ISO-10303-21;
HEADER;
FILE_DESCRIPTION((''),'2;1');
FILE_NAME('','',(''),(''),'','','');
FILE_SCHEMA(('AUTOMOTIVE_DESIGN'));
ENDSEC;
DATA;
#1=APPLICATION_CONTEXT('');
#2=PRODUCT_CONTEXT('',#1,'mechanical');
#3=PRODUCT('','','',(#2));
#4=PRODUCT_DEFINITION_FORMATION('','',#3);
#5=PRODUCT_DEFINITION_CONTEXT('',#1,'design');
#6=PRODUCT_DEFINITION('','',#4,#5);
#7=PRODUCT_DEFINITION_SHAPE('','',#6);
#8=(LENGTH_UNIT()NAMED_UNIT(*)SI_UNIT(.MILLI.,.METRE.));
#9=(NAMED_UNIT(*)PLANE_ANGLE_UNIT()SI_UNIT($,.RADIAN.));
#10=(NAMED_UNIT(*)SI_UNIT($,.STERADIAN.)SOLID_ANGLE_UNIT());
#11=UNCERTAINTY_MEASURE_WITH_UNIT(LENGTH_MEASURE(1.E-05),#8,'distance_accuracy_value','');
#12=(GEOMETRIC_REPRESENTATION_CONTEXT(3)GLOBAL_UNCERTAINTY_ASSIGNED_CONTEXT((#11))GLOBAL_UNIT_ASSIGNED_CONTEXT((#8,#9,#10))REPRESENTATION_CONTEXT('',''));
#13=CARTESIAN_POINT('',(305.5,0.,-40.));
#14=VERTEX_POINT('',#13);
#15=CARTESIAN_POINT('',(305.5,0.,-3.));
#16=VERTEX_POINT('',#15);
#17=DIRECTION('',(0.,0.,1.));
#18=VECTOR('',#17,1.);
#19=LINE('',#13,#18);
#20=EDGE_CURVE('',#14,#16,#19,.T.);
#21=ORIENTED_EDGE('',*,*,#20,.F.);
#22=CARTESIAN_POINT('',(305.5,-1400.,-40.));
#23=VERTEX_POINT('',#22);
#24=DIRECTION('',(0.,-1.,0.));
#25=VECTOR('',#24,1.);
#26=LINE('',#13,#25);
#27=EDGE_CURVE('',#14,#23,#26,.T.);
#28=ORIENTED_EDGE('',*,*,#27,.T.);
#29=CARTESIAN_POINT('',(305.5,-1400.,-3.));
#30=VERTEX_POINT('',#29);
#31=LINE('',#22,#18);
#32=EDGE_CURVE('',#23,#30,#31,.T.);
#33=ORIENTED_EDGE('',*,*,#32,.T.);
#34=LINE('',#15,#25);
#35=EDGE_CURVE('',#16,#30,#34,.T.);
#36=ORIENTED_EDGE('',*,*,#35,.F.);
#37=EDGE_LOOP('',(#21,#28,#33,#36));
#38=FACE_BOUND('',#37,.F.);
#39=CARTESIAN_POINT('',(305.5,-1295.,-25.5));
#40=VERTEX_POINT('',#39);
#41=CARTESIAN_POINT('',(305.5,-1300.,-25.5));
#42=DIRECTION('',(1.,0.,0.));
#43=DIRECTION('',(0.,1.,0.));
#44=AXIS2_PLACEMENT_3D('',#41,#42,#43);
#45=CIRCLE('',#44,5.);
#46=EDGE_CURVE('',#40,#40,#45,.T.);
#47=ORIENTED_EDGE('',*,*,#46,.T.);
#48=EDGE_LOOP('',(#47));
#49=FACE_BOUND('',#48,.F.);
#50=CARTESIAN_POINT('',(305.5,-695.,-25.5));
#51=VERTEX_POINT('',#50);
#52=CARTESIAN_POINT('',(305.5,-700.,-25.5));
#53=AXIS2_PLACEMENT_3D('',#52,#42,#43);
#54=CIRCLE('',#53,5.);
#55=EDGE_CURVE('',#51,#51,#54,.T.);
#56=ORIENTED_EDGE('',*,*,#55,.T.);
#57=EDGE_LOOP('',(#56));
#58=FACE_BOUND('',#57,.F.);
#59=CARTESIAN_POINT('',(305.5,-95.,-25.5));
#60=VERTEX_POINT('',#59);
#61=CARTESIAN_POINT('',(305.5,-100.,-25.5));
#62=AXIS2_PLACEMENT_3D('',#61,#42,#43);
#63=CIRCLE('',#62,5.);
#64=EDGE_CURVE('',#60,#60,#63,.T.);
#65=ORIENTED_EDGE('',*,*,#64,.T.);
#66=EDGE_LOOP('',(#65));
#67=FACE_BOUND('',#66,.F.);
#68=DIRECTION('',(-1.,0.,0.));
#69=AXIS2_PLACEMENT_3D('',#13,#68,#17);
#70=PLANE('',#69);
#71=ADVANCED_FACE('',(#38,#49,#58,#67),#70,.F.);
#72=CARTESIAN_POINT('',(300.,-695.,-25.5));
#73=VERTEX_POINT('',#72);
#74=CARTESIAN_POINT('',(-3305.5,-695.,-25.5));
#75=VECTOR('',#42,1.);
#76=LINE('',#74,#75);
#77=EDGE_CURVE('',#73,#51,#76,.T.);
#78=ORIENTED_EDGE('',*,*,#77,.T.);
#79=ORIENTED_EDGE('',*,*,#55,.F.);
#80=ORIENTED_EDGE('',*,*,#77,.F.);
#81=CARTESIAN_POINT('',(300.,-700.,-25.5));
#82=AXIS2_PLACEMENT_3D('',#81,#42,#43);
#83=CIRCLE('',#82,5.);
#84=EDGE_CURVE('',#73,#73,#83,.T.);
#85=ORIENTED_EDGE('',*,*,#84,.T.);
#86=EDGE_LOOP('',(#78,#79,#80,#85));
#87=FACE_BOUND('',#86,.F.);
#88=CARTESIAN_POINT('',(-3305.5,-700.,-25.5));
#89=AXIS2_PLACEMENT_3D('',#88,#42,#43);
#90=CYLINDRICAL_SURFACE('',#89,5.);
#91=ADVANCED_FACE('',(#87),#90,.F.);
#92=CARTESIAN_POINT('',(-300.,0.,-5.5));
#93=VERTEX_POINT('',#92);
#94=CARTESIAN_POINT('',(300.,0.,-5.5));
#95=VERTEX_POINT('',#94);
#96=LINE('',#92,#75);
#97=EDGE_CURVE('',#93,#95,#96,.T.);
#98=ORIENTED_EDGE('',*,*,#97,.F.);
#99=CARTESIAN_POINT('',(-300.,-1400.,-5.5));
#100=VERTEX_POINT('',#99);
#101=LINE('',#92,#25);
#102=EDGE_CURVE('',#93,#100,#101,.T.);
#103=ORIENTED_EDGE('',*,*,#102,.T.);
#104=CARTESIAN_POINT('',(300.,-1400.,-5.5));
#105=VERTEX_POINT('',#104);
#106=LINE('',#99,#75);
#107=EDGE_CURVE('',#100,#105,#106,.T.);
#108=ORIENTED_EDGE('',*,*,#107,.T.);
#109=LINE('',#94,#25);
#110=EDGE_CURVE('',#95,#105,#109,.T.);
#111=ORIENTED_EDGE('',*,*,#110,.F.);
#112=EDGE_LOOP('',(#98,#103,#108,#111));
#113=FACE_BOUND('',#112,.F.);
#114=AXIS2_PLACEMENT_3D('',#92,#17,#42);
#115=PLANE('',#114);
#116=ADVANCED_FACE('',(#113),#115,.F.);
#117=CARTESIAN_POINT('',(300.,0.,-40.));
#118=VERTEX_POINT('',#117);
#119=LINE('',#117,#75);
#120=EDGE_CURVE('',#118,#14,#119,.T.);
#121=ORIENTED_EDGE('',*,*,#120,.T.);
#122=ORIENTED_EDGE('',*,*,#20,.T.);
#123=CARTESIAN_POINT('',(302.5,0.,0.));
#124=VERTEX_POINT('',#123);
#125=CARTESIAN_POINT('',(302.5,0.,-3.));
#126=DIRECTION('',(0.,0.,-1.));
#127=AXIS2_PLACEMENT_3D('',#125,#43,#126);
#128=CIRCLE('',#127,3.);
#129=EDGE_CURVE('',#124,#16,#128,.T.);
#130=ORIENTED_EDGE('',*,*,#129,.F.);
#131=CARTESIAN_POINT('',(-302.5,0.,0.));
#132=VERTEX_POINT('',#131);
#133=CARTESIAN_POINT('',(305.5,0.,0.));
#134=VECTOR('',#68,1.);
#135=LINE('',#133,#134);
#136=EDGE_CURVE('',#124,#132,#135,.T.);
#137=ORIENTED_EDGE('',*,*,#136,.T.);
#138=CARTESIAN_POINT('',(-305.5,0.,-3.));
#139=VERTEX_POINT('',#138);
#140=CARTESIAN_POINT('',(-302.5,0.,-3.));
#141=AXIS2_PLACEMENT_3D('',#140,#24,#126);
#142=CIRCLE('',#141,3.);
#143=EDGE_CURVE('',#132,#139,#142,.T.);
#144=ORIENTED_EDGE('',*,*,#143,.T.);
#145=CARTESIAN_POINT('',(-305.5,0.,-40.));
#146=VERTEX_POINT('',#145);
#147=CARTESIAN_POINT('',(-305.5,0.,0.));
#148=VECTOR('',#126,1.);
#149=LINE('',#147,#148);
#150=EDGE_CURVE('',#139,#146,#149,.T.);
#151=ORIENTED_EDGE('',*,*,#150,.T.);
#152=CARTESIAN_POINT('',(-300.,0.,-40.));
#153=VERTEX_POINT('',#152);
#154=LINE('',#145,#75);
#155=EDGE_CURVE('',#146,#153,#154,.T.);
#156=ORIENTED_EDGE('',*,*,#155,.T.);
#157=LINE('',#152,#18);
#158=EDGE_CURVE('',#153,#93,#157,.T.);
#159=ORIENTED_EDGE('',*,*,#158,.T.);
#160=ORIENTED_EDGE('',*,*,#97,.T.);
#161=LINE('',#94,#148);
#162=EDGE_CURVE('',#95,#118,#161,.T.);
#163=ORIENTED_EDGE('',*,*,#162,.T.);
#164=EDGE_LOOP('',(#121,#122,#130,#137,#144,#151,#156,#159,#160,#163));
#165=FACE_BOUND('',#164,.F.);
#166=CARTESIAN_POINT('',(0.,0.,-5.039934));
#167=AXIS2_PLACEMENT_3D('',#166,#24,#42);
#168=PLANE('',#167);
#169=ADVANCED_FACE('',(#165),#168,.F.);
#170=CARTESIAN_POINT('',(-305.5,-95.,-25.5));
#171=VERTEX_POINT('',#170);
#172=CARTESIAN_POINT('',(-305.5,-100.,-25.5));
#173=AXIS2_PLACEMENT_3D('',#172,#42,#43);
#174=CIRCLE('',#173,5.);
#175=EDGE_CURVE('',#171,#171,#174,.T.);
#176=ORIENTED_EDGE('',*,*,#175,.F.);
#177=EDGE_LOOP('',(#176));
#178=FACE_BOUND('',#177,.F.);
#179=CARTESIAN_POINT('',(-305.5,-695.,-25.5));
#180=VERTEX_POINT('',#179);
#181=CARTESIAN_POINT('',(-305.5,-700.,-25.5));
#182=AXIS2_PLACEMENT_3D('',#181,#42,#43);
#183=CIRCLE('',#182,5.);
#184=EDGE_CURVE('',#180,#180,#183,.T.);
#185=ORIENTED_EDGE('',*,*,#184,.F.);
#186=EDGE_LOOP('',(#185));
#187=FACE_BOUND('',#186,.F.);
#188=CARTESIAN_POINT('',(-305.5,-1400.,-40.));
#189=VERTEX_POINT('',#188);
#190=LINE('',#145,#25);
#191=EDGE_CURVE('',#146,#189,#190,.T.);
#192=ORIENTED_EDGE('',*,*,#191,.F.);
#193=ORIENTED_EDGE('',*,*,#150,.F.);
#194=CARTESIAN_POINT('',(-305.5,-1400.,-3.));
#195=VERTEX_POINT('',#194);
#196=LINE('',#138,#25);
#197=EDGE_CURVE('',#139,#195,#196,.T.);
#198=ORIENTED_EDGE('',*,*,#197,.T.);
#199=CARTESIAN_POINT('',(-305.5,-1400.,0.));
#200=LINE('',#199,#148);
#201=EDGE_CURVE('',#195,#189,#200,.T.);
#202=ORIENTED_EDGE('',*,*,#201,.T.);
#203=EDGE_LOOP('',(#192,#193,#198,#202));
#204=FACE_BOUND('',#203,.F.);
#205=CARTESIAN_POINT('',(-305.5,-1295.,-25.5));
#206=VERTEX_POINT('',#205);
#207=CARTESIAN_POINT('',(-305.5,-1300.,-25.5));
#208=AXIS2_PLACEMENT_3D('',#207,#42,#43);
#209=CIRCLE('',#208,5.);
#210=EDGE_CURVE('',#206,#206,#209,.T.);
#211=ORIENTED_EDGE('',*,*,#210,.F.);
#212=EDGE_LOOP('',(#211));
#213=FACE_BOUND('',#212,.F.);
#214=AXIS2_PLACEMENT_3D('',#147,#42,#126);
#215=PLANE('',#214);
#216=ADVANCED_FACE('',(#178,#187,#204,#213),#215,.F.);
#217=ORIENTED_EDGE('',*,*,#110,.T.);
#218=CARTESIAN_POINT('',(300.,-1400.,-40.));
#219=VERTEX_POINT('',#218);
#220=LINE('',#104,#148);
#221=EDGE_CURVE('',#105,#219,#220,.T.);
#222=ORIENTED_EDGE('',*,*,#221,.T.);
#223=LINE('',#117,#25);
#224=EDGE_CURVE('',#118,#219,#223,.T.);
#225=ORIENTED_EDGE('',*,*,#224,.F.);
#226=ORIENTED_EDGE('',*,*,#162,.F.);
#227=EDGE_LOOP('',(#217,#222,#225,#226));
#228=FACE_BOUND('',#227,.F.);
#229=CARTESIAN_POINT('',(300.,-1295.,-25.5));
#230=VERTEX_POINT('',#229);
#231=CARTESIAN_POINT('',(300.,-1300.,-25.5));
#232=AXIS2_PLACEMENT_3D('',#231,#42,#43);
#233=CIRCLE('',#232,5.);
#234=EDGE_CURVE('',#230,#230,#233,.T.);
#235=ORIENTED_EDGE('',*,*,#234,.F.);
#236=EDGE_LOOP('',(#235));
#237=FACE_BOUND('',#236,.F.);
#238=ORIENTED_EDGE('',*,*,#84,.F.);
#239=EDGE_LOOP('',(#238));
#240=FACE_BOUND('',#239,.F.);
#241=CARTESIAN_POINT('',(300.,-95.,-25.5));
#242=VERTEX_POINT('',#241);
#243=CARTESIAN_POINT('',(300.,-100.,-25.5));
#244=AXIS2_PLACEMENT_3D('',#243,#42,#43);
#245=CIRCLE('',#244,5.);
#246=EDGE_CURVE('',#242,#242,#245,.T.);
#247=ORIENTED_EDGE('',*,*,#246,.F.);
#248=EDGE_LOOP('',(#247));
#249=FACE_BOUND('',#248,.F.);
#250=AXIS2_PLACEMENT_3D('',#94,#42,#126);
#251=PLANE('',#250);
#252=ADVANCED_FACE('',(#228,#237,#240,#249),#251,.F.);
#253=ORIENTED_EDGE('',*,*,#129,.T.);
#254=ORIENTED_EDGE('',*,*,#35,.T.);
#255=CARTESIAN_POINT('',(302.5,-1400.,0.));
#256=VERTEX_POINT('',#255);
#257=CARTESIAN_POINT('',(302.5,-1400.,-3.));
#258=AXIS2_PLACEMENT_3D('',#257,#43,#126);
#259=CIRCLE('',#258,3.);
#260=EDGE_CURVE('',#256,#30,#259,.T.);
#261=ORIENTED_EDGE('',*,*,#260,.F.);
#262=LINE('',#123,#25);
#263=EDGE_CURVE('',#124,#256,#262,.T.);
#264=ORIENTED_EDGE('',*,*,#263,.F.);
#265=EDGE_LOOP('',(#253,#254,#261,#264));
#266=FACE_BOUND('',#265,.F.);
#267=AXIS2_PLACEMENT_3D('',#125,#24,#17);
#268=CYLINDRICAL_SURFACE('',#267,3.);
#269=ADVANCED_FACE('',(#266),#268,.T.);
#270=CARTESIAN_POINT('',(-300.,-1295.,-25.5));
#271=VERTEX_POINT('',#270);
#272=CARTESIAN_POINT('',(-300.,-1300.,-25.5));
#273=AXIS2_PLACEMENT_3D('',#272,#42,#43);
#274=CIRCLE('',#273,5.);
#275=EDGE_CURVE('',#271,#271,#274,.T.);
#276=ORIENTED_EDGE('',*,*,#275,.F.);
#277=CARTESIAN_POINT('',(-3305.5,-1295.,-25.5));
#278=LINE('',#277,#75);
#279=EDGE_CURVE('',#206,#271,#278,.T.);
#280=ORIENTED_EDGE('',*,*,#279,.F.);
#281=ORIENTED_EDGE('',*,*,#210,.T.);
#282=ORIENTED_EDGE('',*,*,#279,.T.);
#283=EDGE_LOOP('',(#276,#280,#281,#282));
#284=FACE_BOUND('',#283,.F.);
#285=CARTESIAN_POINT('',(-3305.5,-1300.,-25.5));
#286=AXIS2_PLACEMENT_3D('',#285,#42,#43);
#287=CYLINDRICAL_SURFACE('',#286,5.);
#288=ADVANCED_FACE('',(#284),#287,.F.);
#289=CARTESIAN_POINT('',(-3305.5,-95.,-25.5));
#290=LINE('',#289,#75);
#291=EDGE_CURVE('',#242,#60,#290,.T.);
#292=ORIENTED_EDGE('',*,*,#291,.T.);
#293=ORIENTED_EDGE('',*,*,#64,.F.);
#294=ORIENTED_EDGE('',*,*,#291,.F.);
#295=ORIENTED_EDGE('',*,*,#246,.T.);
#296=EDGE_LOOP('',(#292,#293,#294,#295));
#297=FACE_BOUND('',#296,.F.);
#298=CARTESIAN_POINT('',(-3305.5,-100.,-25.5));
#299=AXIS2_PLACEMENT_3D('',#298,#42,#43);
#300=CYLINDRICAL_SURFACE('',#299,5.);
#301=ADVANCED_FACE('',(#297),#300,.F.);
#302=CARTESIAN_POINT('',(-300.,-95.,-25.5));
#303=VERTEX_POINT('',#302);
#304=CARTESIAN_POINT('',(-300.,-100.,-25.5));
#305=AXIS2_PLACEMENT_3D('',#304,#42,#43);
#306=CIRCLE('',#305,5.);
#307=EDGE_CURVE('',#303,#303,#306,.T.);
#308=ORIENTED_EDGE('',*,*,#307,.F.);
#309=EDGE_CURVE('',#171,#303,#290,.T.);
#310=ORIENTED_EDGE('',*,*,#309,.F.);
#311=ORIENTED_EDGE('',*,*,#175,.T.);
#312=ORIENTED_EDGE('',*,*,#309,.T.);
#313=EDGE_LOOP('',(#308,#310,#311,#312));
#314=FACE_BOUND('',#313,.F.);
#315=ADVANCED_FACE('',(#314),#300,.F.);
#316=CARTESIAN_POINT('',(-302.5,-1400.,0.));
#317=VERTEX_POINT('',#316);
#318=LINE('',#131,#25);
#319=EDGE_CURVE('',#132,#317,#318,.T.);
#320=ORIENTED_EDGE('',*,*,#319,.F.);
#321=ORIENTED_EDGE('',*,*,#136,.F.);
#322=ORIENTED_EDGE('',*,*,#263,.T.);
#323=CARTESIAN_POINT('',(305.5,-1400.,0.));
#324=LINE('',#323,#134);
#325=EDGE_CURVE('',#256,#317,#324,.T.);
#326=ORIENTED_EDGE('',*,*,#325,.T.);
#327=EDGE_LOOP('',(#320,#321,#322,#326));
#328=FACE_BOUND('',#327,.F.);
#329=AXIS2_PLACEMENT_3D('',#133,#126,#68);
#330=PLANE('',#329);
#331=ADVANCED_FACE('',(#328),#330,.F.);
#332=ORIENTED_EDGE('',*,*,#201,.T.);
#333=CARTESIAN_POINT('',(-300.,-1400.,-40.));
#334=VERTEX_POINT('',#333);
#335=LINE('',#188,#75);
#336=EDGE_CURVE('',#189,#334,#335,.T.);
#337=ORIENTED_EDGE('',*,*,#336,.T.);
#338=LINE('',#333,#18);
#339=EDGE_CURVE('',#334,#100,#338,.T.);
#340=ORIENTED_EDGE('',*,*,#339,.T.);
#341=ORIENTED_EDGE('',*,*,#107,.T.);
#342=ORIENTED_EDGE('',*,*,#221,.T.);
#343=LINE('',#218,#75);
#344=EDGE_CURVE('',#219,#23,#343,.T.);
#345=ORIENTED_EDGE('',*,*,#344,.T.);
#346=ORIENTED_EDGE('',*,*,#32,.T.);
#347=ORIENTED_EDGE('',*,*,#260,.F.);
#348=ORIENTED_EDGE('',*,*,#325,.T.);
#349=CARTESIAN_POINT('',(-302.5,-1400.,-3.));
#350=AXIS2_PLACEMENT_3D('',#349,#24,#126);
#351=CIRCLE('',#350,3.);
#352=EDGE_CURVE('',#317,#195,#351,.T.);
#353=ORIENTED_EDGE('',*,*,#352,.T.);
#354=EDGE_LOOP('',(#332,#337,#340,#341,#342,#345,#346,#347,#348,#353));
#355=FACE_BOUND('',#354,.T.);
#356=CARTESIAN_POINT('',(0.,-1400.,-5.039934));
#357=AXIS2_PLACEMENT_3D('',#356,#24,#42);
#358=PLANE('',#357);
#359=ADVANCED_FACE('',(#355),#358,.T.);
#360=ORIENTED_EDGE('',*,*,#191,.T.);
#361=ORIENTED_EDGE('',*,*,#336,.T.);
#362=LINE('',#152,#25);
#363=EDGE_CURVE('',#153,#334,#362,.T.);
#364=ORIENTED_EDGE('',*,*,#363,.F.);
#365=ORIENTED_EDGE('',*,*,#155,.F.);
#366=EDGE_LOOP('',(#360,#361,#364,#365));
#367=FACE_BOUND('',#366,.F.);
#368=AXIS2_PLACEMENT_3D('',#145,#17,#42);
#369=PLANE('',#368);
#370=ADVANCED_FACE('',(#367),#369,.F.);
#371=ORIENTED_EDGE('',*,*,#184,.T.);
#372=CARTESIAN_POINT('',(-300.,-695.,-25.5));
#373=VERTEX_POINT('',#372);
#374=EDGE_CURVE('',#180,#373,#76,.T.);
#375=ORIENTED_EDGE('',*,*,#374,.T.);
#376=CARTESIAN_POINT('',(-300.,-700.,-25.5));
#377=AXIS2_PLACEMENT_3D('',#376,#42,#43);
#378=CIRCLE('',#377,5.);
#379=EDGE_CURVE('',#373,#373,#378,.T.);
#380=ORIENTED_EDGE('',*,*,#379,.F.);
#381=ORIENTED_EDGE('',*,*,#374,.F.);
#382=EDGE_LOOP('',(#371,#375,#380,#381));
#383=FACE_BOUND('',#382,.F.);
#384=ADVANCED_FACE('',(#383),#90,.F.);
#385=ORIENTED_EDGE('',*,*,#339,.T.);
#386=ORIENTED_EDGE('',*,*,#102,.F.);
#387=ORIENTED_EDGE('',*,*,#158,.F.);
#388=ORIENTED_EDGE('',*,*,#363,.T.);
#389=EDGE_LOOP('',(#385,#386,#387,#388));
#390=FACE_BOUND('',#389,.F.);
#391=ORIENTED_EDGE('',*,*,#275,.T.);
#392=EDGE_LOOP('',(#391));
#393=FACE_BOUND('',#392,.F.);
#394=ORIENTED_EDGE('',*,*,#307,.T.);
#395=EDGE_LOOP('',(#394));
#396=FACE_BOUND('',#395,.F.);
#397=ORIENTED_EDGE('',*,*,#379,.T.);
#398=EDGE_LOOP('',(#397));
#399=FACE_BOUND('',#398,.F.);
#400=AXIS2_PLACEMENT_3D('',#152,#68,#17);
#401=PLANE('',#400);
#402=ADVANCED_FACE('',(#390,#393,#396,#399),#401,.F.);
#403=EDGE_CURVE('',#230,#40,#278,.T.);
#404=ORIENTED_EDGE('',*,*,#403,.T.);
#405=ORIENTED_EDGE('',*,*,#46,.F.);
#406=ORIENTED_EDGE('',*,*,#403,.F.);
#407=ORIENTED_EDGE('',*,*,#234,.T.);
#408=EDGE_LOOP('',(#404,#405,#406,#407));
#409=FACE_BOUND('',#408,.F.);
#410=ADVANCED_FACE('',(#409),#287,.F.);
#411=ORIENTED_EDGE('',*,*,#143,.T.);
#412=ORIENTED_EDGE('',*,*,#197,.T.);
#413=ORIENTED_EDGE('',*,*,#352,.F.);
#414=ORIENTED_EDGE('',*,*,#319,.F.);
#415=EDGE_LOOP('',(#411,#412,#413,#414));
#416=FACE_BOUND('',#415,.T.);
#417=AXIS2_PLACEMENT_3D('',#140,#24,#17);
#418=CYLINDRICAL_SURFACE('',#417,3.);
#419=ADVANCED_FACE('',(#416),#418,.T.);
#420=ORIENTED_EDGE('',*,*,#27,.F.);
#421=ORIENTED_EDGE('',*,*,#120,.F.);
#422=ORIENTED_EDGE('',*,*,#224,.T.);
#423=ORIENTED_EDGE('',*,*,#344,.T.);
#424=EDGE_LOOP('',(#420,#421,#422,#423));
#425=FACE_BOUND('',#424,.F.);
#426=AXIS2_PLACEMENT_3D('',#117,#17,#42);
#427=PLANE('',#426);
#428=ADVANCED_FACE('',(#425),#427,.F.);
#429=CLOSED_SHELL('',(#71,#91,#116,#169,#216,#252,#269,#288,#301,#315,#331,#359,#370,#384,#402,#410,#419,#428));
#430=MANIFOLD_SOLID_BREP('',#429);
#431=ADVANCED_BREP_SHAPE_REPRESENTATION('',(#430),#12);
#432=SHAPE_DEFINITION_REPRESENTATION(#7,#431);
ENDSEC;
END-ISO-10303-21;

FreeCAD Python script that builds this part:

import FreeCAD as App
import Part
import Sketcher

V = App.Vector


def edges_at(feature, points):
    """Names of the edges that pass closest to the given points."""
    edges = feature.Shape.Edges
    near = lambda p: min(range(len(edges)), key=lambda i: edges[i].distToShape(Part.Vertex(*p))[0])
    return sorted({f"Edge{near(p) + 1}" for p in points})


def add_polygon(sketch, points):
    """Adds a closed chain of lines whose ends are joined by coincident constraints."""
    first, n = sketch.GeometryCount, len(points)
    for a, b in zip(points, points[1:] + points[:1]):
        sketch.addGeometry(Part.LineSegment(App.Vector(*a, 0), App.Vector(*b, 0)), False)
    for i in range(n):
        sketch.addConstraint(Sketcher.Constraint("Coincident", first + i, 2, first + (i + 1) % n, 1))

doc = App.newDocument("Part")
body = doc.addObject("PartDesign::Body", "Body")

# Sketch on XZ plane
sketch1 = doc.addObject("Sketcher::SketchObject", "Sketch")
body.addObject(sketch1)
sketch1.AttachmentSupport = (doc.XZ_Plane, [""])
sketch1.MapMode = "FlatFace"
add_polygon(sketch1, [(305.5, 0), (-305.5, 0), (-305.5, -40), (-300, -40), (-300, -5.5), (300, -5.5), (300, -40), (305.5, -40)])  # lines 0-7
sketch1.addConstraint(Sketcher.Constraint("Horizontal", 0))
sketch1.addConstraint(Sketcher.Constraint("Vertical", 1))
sketch1.addConstraint(Sketcher.Constraint("Horizontal", 2))
sketch1.addConstraint(Sketcher.Constraint("Vertical", 3))
sketch1.addConstraint(Sketcher.Constraint("Horizontal", 4))
sketch1.addConstraint(Sketcher.Constraint("Vertical", 5))
sketch1.addConstraint(Sketcher.Constraint("Horizontal", 6))
sketch1.addConstraint(Sketcher.Constraint("Vertical", 7))
sketch1.addConstraint(Sketcher.Constraint("Symmetric", 0, 2, 7, 2, -1, 1))
sketch1.addConstraint(Sketcher.Constraint("Symmetric", 2, 2, 5, 2, -2))
sketch1.addConstraint(Sketcher.Constraint("DistanceX", 0, 2, 0, 1, 611.0))
sketch1.addConstraint(Sketcher.Constraint("DistanceX", 4, 1, 4, 2, 600.0))
sketch1.addConstraint(Sketcher.Constraint("DistanceY", 1, 2, 1, 1, 40.0))
sketch1.addConstraint(Sketcher.Constraint("DistanceY", 3, 1, 3, 2, 34.5))
pad1 = doc.addObject("PartDesign::Pad", "Pad")
body.addObject(pad1)
pad1.Profile = sketch1
pad1.Length = 1400
doc.recompute()

fillet = doc.addObject("PartDesign::Fillet", "Fillet")
body.addObject(fillet)
fillet.Base = (pad1, edges_at(pad1, [(-305.5, -700, 0), (305.5, -700, 0)]))
fillet.Radius = 3

# Sketch on YZ plane
sketch2 = doc.addObject("Sketcher::SketchObject", "Sketch001")
body.addObject(sketch2)
sketch2.AttachmentSupport = (doc.YZ_Plane, [""])
sketch2.MapMode = "FlatFace"
sketch2.AttachmentOffset = App.Placement(V(0, 0, -305.5), App.Rotation())
sketch2.addGeometry(Part.Circle(V(-100, -25.5, 0), V(0, 0, 1), 5), False)
sketch2.addGeometry(Part.Circle(V(-700, -25.5, 0), V(0, 0, 1), 5), False)
sketch2.addGeometry(Part.Circle(V(-1300, -25.5, 0), V(0, 0, 1), 5), False)
sketch2.addConstraint(Sketcher.Constraint("Equal", 0, 1))
sketch2.addConstraint(Sketcher.Constraint("Equal", 1, 2))
sketch2.addConstraint(Sketcher.Constraint("Horizontal", 0, 3, 1, 3))
sketch2.addConstraint(Sketcher.Constraint("Horizontal", 1, 3, 2, 3))
sketch2.addConstraint(Sketcher.Constraint("Diameter", 0, 10.0))
sketch2.addConstraint(Sketcher.Constraint("DistanceX", 0, 3, -1, 1, 100.0))
sketch2.addConstraint(Sketcher.Constraint("DistanceX", 1, 3, -1, 1, 700.0))
sketch2.addConstraint(Sketcher.Constraint("DistanceX", 2, 3, -1, 1, 1300.0))
sketch2.addConstraint(Sketcher.Constraint("DistanceY", 0, 3, -1, 1, 25.5))
doc.recompute()
hole = doc.addObject("PartDesign::Hole", "Hole")
body.addObject(hole)
hole.Profile = sketch2
hole.ThreadType = "None"
hole.Diameter = 10
hole.DepthType = "Dimension"
hole.Depth = 3000
hole.DrillPoint = "Flat"
hole.Reversed = True

doc.recompute()
